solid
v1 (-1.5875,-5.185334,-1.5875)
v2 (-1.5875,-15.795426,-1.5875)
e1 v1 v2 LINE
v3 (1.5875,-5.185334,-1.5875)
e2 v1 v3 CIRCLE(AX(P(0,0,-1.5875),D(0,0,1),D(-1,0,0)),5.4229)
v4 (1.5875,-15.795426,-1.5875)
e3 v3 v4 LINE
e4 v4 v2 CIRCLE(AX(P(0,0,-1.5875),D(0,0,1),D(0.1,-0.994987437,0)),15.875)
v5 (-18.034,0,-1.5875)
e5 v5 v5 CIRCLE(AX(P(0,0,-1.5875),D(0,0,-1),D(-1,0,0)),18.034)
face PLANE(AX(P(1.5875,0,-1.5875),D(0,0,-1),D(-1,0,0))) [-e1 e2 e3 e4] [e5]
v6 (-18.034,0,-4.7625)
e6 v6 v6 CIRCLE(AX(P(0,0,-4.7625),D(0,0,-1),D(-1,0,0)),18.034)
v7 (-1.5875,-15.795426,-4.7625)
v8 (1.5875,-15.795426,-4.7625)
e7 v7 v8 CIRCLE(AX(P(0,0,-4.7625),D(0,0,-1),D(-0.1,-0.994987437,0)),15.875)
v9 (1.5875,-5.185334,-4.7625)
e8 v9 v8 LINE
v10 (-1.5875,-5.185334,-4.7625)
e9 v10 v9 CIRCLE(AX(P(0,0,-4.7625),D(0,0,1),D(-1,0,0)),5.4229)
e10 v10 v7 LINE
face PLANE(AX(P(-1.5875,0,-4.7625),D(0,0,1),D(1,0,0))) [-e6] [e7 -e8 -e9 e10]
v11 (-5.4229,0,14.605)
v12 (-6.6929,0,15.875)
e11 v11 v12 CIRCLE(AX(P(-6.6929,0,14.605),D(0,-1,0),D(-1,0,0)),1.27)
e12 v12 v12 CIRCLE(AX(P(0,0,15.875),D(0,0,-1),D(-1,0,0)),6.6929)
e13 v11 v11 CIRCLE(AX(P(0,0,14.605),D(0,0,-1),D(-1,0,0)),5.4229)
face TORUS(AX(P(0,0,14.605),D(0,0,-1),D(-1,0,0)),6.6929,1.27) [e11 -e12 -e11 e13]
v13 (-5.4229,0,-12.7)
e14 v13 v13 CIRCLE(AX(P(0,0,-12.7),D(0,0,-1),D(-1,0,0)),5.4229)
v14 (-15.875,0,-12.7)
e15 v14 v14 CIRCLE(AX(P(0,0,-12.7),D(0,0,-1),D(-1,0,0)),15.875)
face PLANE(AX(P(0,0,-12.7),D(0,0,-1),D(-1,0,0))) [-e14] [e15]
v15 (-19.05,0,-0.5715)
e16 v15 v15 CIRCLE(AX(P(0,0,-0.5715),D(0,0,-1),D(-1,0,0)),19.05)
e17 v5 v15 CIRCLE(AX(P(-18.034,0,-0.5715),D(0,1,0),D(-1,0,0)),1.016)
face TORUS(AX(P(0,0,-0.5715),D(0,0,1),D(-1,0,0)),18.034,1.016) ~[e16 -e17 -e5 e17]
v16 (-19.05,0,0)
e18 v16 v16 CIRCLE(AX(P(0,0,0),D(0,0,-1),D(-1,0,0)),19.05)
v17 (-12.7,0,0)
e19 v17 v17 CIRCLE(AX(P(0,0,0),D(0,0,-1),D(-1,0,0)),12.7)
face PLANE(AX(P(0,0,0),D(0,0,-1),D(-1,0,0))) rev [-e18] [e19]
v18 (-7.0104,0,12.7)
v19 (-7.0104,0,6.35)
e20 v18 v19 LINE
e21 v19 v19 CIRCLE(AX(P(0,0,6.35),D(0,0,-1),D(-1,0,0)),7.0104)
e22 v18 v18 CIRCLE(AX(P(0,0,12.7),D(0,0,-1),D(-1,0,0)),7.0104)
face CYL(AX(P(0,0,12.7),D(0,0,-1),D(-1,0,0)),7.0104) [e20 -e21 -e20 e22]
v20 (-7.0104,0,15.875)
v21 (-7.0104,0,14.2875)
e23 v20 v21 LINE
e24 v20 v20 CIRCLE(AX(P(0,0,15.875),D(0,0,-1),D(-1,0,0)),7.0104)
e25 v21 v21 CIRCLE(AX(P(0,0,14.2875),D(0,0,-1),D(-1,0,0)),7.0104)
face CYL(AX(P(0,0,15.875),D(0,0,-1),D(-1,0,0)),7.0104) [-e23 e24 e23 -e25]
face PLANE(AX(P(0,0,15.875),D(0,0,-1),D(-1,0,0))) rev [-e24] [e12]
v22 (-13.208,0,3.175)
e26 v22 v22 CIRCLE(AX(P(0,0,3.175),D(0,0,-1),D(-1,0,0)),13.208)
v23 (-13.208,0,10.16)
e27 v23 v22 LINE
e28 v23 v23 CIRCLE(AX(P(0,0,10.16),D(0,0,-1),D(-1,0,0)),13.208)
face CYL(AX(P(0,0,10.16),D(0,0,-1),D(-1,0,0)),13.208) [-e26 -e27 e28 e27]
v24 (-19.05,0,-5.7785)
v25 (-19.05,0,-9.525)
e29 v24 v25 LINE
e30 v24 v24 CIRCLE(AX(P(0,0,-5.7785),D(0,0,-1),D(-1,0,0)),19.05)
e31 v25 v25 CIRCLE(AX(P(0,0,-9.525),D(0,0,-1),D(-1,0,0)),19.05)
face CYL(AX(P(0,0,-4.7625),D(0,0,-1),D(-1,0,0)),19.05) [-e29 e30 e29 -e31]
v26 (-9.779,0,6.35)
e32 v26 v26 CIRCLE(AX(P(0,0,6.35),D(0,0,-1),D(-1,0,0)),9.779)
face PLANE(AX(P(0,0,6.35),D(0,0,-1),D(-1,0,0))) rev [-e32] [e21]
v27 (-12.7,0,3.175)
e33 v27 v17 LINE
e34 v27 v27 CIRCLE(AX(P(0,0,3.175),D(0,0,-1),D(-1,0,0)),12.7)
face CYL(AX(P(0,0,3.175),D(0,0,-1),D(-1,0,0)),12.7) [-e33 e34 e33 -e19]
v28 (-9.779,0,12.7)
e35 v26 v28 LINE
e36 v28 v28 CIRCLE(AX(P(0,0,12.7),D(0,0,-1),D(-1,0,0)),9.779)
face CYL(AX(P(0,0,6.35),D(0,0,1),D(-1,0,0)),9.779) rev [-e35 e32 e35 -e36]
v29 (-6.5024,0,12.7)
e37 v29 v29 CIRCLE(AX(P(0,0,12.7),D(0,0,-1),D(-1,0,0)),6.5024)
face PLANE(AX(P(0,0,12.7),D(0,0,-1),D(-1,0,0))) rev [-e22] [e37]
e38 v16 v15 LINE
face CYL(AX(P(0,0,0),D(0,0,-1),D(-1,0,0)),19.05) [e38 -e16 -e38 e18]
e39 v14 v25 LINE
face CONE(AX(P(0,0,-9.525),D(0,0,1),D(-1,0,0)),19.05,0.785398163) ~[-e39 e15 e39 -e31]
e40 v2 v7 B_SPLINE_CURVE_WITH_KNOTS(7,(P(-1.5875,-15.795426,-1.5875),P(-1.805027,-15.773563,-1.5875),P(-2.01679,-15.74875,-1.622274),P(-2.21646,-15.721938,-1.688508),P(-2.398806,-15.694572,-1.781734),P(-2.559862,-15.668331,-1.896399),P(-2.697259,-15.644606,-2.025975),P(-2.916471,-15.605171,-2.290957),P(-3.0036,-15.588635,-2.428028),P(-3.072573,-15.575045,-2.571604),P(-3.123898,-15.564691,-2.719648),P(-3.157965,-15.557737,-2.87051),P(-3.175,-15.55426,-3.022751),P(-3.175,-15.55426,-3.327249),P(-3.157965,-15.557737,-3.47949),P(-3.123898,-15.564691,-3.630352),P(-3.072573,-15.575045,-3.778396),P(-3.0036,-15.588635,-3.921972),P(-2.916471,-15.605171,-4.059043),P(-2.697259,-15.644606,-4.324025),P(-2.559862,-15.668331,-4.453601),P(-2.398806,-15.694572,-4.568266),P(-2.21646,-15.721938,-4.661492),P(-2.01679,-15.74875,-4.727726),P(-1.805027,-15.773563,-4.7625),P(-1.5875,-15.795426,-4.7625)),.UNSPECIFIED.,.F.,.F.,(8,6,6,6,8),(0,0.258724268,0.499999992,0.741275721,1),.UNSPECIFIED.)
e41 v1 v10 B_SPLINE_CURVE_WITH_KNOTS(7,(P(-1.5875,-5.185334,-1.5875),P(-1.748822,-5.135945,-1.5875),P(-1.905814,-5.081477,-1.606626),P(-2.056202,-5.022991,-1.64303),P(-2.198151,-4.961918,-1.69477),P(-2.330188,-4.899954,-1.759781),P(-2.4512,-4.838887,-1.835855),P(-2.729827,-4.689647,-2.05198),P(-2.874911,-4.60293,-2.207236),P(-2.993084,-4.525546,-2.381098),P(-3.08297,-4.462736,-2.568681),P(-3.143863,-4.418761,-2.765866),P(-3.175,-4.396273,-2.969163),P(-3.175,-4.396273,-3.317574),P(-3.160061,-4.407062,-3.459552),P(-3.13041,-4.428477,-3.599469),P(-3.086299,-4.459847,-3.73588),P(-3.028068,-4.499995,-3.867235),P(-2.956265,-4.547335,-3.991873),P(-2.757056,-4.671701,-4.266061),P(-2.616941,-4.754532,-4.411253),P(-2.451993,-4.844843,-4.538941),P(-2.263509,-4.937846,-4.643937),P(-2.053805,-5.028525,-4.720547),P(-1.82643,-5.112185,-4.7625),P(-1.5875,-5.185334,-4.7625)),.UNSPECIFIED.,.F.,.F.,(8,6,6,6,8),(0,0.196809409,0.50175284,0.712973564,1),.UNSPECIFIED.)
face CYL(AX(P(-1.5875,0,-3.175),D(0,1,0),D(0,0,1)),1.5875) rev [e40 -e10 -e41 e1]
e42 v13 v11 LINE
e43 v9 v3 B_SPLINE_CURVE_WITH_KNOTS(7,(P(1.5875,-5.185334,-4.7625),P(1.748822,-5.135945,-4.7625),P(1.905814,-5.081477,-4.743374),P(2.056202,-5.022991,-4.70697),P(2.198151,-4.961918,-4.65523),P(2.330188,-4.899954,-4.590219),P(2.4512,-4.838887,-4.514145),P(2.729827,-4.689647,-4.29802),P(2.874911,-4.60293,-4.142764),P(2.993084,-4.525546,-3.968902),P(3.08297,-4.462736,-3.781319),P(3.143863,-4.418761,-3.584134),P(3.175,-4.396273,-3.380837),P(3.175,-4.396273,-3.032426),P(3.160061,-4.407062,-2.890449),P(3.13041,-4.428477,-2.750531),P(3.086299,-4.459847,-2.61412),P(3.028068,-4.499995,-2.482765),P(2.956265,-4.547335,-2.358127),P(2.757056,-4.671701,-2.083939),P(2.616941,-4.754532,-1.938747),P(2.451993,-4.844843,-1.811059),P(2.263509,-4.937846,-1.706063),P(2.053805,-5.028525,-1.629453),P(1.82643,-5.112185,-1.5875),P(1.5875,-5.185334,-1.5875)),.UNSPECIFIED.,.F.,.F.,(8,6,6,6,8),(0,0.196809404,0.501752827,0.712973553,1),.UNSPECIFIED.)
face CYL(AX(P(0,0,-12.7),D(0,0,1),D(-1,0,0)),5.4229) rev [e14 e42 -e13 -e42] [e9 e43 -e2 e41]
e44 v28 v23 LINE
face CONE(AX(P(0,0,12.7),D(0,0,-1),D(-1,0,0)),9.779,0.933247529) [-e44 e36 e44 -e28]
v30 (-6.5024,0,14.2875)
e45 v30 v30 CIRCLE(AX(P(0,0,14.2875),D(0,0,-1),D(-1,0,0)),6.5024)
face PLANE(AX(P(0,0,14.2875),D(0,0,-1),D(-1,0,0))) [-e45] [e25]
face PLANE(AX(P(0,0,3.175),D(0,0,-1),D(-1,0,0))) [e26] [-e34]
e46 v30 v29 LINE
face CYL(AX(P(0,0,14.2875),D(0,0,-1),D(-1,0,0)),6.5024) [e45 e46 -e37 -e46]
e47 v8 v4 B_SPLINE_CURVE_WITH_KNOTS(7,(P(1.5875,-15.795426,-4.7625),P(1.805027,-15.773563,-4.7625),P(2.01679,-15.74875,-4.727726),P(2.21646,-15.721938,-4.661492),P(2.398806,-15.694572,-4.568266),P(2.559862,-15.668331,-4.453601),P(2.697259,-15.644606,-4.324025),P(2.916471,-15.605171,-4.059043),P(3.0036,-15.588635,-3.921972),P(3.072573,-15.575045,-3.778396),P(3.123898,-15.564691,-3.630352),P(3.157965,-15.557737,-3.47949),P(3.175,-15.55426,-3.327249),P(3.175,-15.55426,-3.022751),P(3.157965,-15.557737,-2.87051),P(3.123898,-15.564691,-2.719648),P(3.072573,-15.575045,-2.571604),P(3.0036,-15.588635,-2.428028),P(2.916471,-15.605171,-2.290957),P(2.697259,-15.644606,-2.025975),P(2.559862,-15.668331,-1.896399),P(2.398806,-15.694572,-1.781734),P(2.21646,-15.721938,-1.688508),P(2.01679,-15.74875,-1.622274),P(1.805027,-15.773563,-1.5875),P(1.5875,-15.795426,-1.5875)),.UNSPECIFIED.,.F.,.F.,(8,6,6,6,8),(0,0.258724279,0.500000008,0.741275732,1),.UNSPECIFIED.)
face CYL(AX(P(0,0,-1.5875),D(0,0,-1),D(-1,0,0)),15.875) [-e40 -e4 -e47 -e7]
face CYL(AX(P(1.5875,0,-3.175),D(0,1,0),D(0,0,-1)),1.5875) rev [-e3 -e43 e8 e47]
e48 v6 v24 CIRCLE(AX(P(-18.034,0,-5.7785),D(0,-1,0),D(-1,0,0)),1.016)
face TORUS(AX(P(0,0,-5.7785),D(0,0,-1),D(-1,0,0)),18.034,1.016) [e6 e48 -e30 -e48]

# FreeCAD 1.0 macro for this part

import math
import FreeCAD as App
import Part
import Sketcher

V = App.Vector
Q = App.Units.Quantity


def edges_at(feature, points):
    """Names of the edges that pass closest to the given points."""
    edges = feature.Shape.Edges
    near = lambda p: min(range(len(edges)), key=lambda i: edges[i].distToShape(Part.Vertex(*p))[0])
    return sorted({f"Edge{near(p) + 1}" for p in points})


def add_polygon(sketch, points):
    """Adds a closed chain of lines whose ends are joined by coincident constraints."""
    first, n = sketch.GeometryCount, len(points)
    for a, b in zip(points, points[1:] + points[:1]):
        sketch.addGeometry(Part.LineSegment(App.Vector(*a, 0), App.Vector(*b, 0)), False)
    for i in range(n):
        sketch.addConstraint(Sketcher.Constraint("Coincident", first + i, 2, first + (i + 1) % n, 1))

doc = App.newDocument("Part")
body = doc.addObject("PartDesign::Body", "Body")

# Sketch on XZ plane
sketch1 = doc.addObject("Sketcher::SketchObject", "Sketch")
body.addObject(sketch1)
sketch1.AttachmentSupport = (doc.XZ_Plane, [""])
sketch1.MapMode = "FlatFace"
add_polygon(sketch1, [(-19.1, -12.7), (-5.4, -12.7), (-5.4, 15.9), (-7, 15.9), (-7, 14.3), (-6.5, 14.3), (-6.5, 12.7), (-7, 12.7), (-7, 6.3), (-9.8, 6.3), (-9.8, 12.7), (-13.2, 10.2), (-13.2, 3.2), (-12.7, 3.2), (-12.7, 0), (-19.1, 0), (-19.1, -1.6), (-15.9, -1.6), (-15.9, -4.8), (-19.1, -4.8)])  # lines 0-19
sketch1.addConstraint(Sketcher.Constraint("Horizontal", 0))
sketch1.addConstraint(Sketcher.Constraint("Vertical", 1))
sketch1.addConstraint(Sketcher.Constraint("Horizontal", 2))
sketch1.addConstraint(Sketcher.Constraint("Vertical", 3))
sketch1.addConstraint(Sketcher.Constraint("Horizontal", 4))
sketch1.addConstraint(Sketcher.Constraint("Vertical", 5))
sketch1.addConstraint(Sketcher.Constraint("Horizontal", 6))
sketch1.addConstraint(Sketcher.Constraint("Vertical", 7))
sketch1.addConstraint(Sketcher.Constraint("Horizontal", 8))
sketch1.addConstraint(Sketcher.Constraint("Vertical", 9))
sketch1.addConstraint(Sketcher.Constraint("Vertical", 11))
sketch1.addConstraint(Sketcher.Constraint("Horizontal", 12))
sketch1.addConstraint(Sketcher.Constraint("Vertical", 13))
sketch1.addConstraint(Sketcher.Constraint("Horizontal", 14))
sketch1.addConstraint(Sketcher.Constraint("Vertical", 15))
sketch1.addConstraint(Sketcher.Constraint("Horizontal", 16))
sketch1.addConstraint(Sketcher.Constraint("Vertical", 17))
sketch1.addConstraint(Sketcher.Constraint("Horizontal", 18))
sketch1.addConstraint(Sketcher.Constraint("Vertical", 19))
sketch1.addConstraint(Sketcher.Constraint("PointOnObject", 13, 2, -1))
sketch1.addConstraint(Sketcher.Constraint("Horizontal", 6, 2, 9, 2))
sketch1.addConstraint(Sketcher.Constraint("Vertical", 3, 2, 6, 2))
sketch1.addConstraint(Sketcher.Constraint("Vertical", 15, 2, 18, 2))
sketch1.addConstraint(Sketcher.Constraint("Equal", 6, 12))
sketch1.addConstraint(Sketcher.Constraint("Equal", 2, 3))
sketch1.addConstraint(Sketcher.Constraint("Equal", 3, 5))
sketch1.addConstraint(Sketcher.Constraint("Equal", 14, 7))
sketch1.addConstraint(Sketcher.Constraint("Equal", 18, 13))
sketch1.addConstraint(Sketcher.Constraint("Equal", 5, 15))
sketch1.addConstraint(Sketcher.Constraint("Equal", 13, 17))
sketch1.addConstraint(Sketcher.Constraint("DistanceY", 0, 2, 5, 2, Q("1 in")))
sketch1.addConstraint(Sketcher.Constraint("DistanceX", 4, 1, 4, 2, Q("0.02 in")))
sketch1.addConstraint(Sketcher.Constraint("DistanceX", 14, 2, 14, 1, Q("0.25 in")))
sketch1.addConstraint(Sketcher.Constraint("DistanceY", 0, 2, -1, 1, Q("0.5 in")))
sketch1.addConstraint(Sketcher.Constraint("DistanceY", -1, 1, 10, 2, Q("0.4 in")))
sketch1.addConstraint(Sketcher.Constraint("DistanceX", 12, 2, -1, 1, Q("0.5 in")))
sketch1.addConstraint(Sketcher.Constraint("DistanceX", 2, 2, 2, 1, Q("0.0625 in")))
sketch1.addConstraint(Sketcher.Constraint("DistanceX", 8, 2, 8, 1, Q("0.109 in")))
sketch1.addConstraint(Sketcher.Constraint("DistanceX", 16, 1, 16, 2, Q("0.125 in")))
sketch1.addConstraint(Sketcher.Constraint("DistanceX", 0, 1, 0, 2, Q("0.5365 in")))
revolution = doc.addObject("PartDesign::Revolution", "Revolution")
body.addObject(revolution)
revolution.Profile = sketch1
revolution.ReferenceAxis = (sketch1, ["V_Axis"])
revolution.Angle = 360
doc.recompute()

chamfer = doc.addObject("PartDesign::Chamfer", "Chamfer")
body.addObject(chamfer)
chamfer.Base = (revolution, edges_at(revolution, [(19.05, 0, -12.7)]))
chamfer.Size = Q("0.125 in")

# Sketch on XZ plane
sketch2 = doc.addObject("Sketcher::SketchObject", "Sketch001")
body.addObject(sketch2)
sketch2.AttachmentSupport = (doc.XZ_Plane, [""])
sketch2.MapMode = "FlatFace"
sketch2.addGeometry(Part.ArcOfCircle(Part.Circle(V(1.6, -3.2, 0), V(0, 0, 1), 1.6), math.radians(-90), math.radians(90)), False)
sketch2.addGeometry(Part.LineSegment(V(1.6, -1.6, 0), V(-1.6, -1.6, 0)), False)
sketch2.addGeometry(Part.ArcOfCircle(Part.Circle(V(-1.6, -3.2, 0), V(0, 0, 1), 1.6), math.radians(90), math.radians(270)), False)
sketch2.addGeometry(Part.LineSegment(V(-1.6, -4.8, 0), V(1.6, -4.8, 0)), False)
sketch2.addConstraint(Sketcher.Constraint("Tangent", 0, 2, 1, 1))
sketch2.addConstraint(Sketcher.Constraint("Tangent", 1, 2, 2, 1))
sketch2.addConstraint(Sketcher.Constraint("Tangent", 2, 2, 3, 1))
sketch2.addConstraint(Sketcher.Constraint("Tangent", 3, 2, 0, 1))
sketch2.addConstraint(Sketcher.Constraint("Horizontal", 1))
sketch2.addConstraint(Sketcher.Constraint("Horizontal", 3))
sketch2.addConstraint(Sketcher.Constraint("Radius", 0, Q("0.0625 in")))
sketch2.addConstraint(Sketcher.Constraint("DistanceX", 1, 2, 1, 1, Q("0.125 in")))
sketch2.addConstraint(Sketcher.Constraint("DistanceX", -1, 1, 0, 3, Q("0.0625 in")))
sketch2.addConstraint(Sketcher.Constraint("DistanceY", 0, 3, -1, 1, Q("0.125 in")))
pocket1 = doc.addObject("PartDesign::Pocket", "Pocket")
body.addObject(pocket1)
pocket1.Profile = sketch2
pocket1.Length = Q("1 in")
pocket1.Reversed = True
doc.recompute()

fillet = doc.addObject("PartDesign::Fillet", "Fillet")
body.addObject(fillet)
fillet.Base = (pocket1, edges_at(pocket1, [(19.05, 0, -1.587), (19.05, 0, -4.763)]))
fillet.Radius = Q("0.04 in")
doc.recompute()

fillet2 = doc.addObject("PartDesign::Fillet", "Fillet001")
body.addObject(fillet2)
fillet2.Base = (fillet, edges_at(fillet, [(5.423, 0, 15.875)]))
fillet2.Radius = Q("0.05 in")

doc.recompute()
